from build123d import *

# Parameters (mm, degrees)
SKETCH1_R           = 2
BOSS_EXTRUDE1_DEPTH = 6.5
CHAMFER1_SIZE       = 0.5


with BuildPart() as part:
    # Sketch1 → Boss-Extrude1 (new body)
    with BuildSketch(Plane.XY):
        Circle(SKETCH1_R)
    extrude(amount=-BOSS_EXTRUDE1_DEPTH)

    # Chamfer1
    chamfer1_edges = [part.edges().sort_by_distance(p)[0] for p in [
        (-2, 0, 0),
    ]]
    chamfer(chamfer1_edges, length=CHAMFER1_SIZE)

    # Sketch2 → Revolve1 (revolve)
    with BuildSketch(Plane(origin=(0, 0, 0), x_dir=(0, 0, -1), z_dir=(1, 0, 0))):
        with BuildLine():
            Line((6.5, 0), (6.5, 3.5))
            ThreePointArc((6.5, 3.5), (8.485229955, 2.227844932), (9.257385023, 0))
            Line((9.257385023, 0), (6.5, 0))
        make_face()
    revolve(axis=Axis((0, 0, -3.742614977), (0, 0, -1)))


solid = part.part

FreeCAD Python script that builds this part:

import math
import FreeCAD as App
import Part
import Sketcher
Q = App.Units.Quantity


def edges_at(feature, points):
    """Names of the edges that pass closest to the given points."""
    edges = feature.Shape.Edges
    near = lambda p: min(range(len(edges)), key=lambda i: edges[i].distToShape(Part.Vertex(*p))[0])
    return sorted({f"Edge{near(p) + 1}" for p in points})

doc = App.newDocument("Part")
body = doc.addObject("PartDesign::Body", "Body")

# Sketch on XY plane
sketch1 = body.newObject("Sketcher::SketchObject", "Sketch")
sketch1.AttachmentSupport = (doc.getObject("XY_Plane"), [""])
sketch1.MapMode = "FlatFace"
sketch1.addGeometry(Part.Circle(App.Vector(0, 0, 0), App.Vector(0, 0, 1), 2), False)
sketch1.addConstraint([
    Sketcher.Constraint("Coincident", 0, 3, -1, 1),
    Sketcher.Constraint("Diameter", 0, Q("4 mm")),
])
pad1 = body.newObject("PartDesign::Pad", "Pad")
pad1.Profile = sketch1
pad1.Length = 6.5
pad1.Reversed = True
doc.recompute()

chamfer = body.newObject("PartDesign::Chamfer", "Chamfer")
chamfer.Base = (pad1, edges_at(pad1, [(-2, 0, 0)]))
chamfer.Size = 0.5

# Sketch on YZ plane
sketch2 = body.newObject("Sketcher::SketchObject", "Sketch001")
sketch2.AttachmentSupport = (doc.getObject("YZ_Plane"), [""])
sketch2.MapMode = "FlatFace"
sketch2.addGeometry([
    Part.LineSegment(App.Vector(3.5, -6.5, 0), App.Vector(0, -6.5, 0)),
    Part.LineSegment(App.Vector(0, -6.5, 0), App.Vector(0, -9.3, 0)),
    Part.ArcOfCircle(Part.Circle(App.Vector(0, -5.7, 0), App.Vector(0, 0, 1), 3.6), math.radians(-90), math.radians(-14)),
], False)
sketch2.addConstraint([
    Sketcher.Constraint("Coincident", 0, 2, 1, 1),
    Sketcher.Constraint("Coincident", 1, 2, 2, 1),
    Sketcher.Constraint("Coincident", 2, 2, 0, 1),
    Sketcher.Constraint("Horizontal", 0),
    Sketcher.Constraint("Vertical", 1),
    Sketcher.Constraint("PointOnObject", 2, 3, -2),
    Sketcher.Constraint("PointOnObject", 0, 2, -2),
    Sketcher.Constraint("Radius", 2, Q("3.6 mm")),
    Sketcher.Constraint("DistanceX", 0, 2, 0, 1, Q("3.5 mm")),
    Sketcher.Constraint("DistanceY", 0, 2, -1, 1, Q("6.5 mm")),
])
revolution = body.newObject("PartDesign::Revolution", "Revolution")
revolution.Profile = sketch2
revolution.ReferenceAxis = (sketch2, ["V_Axis"])
revolution.Angle = 360

doc.recompute()
